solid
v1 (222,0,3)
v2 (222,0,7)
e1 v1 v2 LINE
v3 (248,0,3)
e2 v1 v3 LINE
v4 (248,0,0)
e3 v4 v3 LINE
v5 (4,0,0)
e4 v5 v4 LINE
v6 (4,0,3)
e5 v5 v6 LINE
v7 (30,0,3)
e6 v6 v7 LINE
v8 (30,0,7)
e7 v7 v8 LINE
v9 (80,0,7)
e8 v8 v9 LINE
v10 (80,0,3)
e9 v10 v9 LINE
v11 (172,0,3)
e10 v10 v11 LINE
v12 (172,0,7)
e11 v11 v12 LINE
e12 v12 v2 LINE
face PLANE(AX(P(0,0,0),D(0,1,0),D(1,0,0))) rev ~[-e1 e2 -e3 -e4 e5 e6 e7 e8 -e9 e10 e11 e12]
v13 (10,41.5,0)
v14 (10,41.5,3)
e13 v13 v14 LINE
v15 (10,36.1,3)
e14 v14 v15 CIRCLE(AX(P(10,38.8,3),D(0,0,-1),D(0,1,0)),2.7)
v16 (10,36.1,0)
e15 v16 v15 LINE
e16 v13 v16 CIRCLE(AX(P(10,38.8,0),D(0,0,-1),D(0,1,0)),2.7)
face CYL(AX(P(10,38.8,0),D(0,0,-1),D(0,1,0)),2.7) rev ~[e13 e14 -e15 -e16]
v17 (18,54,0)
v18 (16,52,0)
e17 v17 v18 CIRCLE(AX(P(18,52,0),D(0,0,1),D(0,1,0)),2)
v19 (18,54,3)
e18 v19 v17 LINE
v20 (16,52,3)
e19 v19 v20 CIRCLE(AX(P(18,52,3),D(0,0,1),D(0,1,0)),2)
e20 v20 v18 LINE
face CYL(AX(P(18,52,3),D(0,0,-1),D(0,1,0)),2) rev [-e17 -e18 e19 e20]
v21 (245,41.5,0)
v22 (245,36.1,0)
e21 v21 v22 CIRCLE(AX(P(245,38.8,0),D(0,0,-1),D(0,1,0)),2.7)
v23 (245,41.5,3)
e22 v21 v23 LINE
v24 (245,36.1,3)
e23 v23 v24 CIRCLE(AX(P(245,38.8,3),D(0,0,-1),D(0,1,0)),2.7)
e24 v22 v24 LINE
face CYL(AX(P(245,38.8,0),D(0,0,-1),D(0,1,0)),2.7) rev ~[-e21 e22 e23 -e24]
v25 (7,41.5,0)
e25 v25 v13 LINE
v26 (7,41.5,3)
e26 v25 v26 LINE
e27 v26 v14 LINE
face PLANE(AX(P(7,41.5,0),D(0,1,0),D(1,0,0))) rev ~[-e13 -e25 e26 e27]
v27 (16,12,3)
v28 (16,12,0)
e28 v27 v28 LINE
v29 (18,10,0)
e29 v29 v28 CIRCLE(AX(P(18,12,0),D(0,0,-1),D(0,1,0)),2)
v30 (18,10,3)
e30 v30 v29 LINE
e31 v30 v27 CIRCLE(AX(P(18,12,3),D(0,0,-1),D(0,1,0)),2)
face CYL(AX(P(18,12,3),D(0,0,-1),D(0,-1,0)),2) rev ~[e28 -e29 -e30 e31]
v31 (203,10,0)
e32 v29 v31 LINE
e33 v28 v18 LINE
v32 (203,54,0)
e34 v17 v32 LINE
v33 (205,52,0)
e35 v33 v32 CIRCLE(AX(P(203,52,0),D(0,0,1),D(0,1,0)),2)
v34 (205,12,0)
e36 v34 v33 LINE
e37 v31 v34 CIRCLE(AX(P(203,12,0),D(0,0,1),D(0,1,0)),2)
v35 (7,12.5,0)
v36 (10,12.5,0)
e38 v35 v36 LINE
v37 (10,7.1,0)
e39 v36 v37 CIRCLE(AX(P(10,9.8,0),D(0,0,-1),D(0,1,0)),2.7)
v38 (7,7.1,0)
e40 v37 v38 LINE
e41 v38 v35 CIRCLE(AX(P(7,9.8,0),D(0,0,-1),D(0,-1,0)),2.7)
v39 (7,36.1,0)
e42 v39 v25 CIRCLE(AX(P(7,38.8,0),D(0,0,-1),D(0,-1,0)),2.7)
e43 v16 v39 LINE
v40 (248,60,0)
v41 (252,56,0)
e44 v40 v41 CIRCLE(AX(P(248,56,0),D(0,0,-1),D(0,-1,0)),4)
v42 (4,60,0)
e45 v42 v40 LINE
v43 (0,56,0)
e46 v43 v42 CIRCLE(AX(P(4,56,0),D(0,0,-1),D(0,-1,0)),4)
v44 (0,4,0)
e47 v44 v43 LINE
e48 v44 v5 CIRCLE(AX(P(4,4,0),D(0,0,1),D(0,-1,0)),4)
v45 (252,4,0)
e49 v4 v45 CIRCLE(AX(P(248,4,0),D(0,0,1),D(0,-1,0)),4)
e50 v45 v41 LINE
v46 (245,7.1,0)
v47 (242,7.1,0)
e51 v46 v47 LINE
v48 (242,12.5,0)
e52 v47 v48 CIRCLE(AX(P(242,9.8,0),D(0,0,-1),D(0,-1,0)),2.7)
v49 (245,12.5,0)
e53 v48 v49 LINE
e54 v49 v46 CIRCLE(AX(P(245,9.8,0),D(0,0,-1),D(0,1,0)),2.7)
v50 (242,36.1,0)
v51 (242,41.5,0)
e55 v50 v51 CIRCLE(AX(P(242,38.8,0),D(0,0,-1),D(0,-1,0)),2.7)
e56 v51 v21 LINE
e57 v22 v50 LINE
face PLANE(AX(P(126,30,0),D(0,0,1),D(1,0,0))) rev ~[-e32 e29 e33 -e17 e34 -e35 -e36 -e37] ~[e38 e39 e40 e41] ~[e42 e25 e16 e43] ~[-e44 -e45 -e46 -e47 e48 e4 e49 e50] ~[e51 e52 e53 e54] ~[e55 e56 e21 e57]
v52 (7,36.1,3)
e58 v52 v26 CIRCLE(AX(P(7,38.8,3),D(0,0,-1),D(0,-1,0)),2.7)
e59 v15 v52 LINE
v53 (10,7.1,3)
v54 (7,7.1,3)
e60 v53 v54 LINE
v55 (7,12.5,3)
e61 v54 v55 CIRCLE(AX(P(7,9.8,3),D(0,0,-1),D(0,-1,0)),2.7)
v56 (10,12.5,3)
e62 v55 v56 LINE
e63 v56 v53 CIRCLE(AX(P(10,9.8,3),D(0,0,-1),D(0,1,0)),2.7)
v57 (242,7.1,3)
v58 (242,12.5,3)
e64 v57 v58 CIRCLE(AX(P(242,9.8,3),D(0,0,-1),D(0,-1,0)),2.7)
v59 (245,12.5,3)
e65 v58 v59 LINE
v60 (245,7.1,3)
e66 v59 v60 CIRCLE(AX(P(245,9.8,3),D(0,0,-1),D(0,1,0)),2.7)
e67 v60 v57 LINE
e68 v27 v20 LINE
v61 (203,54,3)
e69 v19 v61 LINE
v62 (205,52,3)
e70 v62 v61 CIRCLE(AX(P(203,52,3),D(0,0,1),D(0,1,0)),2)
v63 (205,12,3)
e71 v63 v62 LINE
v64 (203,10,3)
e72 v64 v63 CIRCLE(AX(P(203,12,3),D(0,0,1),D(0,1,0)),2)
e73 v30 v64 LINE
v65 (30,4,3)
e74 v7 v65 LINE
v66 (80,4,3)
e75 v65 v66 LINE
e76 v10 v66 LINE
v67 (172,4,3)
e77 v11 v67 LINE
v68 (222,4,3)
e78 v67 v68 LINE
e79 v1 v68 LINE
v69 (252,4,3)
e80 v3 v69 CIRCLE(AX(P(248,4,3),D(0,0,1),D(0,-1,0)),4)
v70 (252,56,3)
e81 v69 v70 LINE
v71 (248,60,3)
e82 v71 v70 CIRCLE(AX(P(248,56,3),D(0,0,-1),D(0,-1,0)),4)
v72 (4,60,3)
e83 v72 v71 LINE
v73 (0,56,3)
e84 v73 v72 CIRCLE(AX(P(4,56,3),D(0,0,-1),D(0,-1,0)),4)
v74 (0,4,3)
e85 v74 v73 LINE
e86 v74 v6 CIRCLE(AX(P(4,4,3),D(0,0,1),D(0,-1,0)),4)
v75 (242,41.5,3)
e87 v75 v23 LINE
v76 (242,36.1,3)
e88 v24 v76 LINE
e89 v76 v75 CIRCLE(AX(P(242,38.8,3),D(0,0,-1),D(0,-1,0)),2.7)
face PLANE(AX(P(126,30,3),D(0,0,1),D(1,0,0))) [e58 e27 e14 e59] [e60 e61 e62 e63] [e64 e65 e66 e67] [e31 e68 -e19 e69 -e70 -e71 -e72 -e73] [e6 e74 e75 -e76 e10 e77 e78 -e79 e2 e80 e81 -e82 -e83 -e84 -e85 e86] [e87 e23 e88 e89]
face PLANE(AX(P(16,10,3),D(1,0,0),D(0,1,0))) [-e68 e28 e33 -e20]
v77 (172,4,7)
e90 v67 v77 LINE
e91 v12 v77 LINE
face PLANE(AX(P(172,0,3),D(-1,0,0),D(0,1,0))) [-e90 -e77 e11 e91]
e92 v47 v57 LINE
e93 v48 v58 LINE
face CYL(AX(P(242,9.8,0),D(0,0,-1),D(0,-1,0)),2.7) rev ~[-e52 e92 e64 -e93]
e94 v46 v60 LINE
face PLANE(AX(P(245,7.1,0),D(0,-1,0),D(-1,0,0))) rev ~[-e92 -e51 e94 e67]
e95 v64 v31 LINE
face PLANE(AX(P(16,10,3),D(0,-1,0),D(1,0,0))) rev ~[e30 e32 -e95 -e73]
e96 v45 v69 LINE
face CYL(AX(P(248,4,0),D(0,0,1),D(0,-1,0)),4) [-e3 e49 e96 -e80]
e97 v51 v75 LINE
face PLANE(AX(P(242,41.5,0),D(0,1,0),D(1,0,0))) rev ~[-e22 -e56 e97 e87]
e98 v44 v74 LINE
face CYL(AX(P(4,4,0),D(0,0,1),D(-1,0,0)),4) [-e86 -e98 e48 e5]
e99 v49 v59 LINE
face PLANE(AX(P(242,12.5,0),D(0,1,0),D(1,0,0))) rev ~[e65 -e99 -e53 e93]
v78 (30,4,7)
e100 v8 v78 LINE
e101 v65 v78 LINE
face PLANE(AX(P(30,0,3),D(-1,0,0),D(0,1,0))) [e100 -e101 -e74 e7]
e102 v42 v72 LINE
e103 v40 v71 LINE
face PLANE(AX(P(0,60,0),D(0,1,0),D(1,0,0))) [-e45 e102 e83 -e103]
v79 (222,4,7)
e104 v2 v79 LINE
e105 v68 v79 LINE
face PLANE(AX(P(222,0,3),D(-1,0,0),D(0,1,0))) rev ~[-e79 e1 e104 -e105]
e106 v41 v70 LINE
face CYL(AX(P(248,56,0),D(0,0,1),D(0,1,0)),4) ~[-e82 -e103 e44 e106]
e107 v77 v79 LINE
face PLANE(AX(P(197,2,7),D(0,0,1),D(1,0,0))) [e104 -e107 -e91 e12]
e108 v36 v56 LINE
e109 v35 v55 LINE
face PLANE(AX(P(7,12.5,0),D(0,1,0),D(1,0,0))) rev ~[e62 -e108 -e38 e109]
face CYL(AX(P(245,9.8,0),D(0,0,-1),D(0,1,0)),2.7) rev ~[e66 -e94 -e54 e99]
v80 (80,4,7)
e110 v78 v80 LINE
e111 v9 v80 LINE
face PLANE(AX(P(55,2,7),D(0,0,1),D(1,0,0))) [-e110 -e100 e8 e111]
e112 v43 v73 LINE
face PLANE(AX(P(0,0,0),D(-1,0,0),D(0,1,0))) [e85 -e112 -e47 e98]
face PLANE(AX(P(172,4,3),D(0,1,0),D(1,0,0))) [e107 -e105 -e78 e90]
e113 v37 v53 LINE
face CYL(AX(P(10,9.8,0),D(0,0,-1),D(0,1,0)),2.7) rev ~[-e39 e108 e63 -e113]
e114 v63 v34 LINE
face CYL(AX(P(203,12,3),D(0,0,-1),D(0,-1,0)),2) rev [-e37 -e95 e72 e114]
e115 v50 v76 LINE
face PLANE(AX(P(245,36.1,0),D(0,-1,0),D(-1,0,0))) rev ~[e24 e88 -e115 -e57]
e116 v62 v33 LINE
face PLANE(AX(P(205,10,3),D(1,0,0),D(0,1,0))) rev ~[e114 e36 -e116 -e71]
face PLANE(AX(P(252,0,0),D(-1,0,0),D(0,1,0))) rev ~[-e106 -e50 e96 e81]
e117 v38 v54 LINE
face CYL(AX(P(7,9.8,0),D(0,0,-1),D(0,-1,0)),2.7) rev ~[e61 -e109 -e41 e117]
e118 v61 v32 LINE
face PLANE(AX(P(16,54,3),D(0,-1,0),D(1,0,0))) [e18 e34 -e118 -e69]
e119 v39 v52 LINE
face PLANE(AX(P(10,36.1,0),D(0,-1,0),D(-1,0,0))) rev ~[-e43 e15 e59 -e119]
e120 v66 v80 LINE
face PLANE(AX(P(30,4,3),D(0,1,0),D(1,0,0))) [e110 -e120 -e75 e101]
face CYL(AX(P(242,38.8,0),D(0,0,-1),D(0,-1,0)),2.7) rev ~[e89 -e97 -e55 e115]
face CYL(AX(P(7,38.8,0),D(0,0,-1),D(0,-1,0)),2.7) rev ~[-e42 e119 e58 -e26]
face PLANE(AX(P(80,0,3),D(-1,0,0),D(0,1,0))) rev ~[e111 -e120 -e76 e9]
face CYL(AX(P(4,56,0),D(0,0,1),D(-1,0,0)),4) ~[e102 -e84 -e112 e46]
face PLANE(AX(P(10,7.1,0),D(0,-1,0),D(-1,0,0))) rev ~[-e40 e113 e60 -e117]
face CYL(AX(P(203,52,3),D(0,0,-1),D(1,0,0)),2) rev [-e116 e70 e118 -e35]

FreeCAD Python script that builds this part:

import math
import FreeCAD as App
import Part
import Sketcher
from FreeCAD import Vector


def edges_at(feature, points):
    """Names of the edges that pass closest to the given points."""
    edges = feature.Shape.Edges
    near = lambda p: min(range(len(edges)), key=lambda i: edges[i].distToShape(Part.Vertex(*p))[0])
    return sorted({f"Edge{near(p) + 1}" for p in points})


def add_polygon(sketch, points):
    """Adds a closed chain of lines whose ends are joined by coincident constraints."""
    first, n = sketch.GeometryCount, len(points)
    for a, b in zip(points, points[1:] + points[:1]):
        sketch.addGeometry(Part.LineSegment(App.Vector(*a, 0), App.Vector(*b, 0)), False)
    for i in range(n):
        sketch.addConstraint(Sketcher.Constraint("Coincident", first + i, 2, first + (i + 1) % n, 1))

doc = App.newDocument("Part")
body = doc.addObject("PartDesign::Body", "Body")

sketch1 = doc.addObject("Sketcher::SketchObject", "Sketch")
body.addObject(sketch1)
sketch1.AttachmentSupport = (doc.XY_Plane, [""])
sketch1.MapMode = "FlatFace"
add_polygon(sketch1, [(0, 60), (0, 0), (252, 0), (252, 60)])
sketch1.addGeometry(Part.ArcOfCircle(Part.Circle(Vector(7, 9.8, 0), Vector(0, 0, 1), 2.7), math.radians(90), math.radians(270)), False)
sketch1.addGeometry(Part.LineSegment(Vector(7, 12.5, 0), Vector(10, 12.5, 0)), False)
sketch1.addGeometry(Part.ArcOfCircle(Part.Circle(Vector(10, 9.8, 0), Vector(0, 0, 1), 2.7), math.radians(-90), math.radians(90)), False)
sketch1.addGeometry(Part.LineSegment(Vector(10, 7.1, 0), Vector(7, 7.1, 0)), False)
sketch1.addGeometry(Part.ArcOfCircle(Part.Circle(Vector(242, 9.8, 0), Vector(0, 0, 1), 2.7), math.radians(90), math.radians(270)), False)
sketch1.addGeometry(Part.LineSegment(Vector(242, 12.5, 0), Vector(245, 12.5, 0)), False)
sketch1.addGeometry(Part.ArcOfCircle(Part.Circle(Vector(245, 9.8, 0), Vector(0, 0, 1), 2.7), math.radians(-90), math.radians(90)), False)
sketch1.addGeometry(Part.LineSegment(Vector(245, 7.1, 0), Vector(242, 7.1, 0)), False)
sketch1.addGeometry(Part.ArcOfCircle(Part.Circle(Vector(7, 38.8, 0), Vector(0, 0, 1), 2.7), math.radians(90), math.radians(270)), False)
sketch1.addGeometry(Part.LineSegment(Vector(7, 41.5, 0), Vector(10, 41.5, 0)), False)
sketch1.addGeometry(Part.ArcOfCircle(Part.Circle(Vector(10, 38.8, 0), Vector(0, 0, 1), 2.7), math.radians(-90), math.radians(90)), False)
sketch1.addGeometry(Part.LineSegment(Vector(10, 36.1, 0), Vector(7, 36.1, 0)), False)
sketch1.addGeometry(Part.ArcOfCircle(Part.Circle(Vector(245, 38.8, 0), Vector(0, 0, 1), 2.7), math.radians(-90), math.radians(90)), False)
sketch1.addGeometry(Part.LineSegment(Vector(245, 36.1, 0), Vector(242, 36.1, 0)), False)
sketch1.addGeometry(Part.ArcOfCircle(Part.Circle(Vector(242, 38.8, 0), Vector(0, 0, 1), 2.7), math.radians(90), math.radians(270)), False)
sketch1.addGeometry(Part.LineSegment(Vector(242, 41.5, 0), Vector(245, 41.5, 0)), False)
sketch1.addConstraint(Sketcher.Constraint("Tangent", 4, 1, 5, 1))
sketch1.addConstraint(Sketcher.Constraint("Tangent", 5, 2, 6, 2))
sketch1.addConstraint(Sketcher.Constraint("Tangent", 6, 1, 7, 1))
sketch1.addConstraint(Sketcher.Constraint("Tangent", 7, 2, 4, 2))
sketch1.addConstraint(Sketcher.Constraint("Tangent", 8, 1, 9, 1))
sketch1.addConstraint(Sketcher.Constraint("Tangent", 9, 2, 10, 2))
sketch1.addConstraint(Sketcher.Constraint("Tangent", 10, 1, 11, 1))
sketch1.addConstraint(Sketcher.Constraint("Tangent", 11, 2, 8, 2))
sketch1.addConstraint(Sketcher.Constraint("Tangent", 12, 1, 13, 1))
sketch1.addConstraint(Sketcher.Constraint("Tangent", 13, 2, 14, 2))
sketch1.addConstraint(Sketcher.Constraint("Tangent", 14, 1, 15, 1))
sketch1.addConstraint(Sketcher.Constraint("Tangent", 15, 2, 12, 2))
sketch1.addConstraint(Sketcher.Constraint("Tangent", 16, 1, 17, 1))
sketch1.addConstraint(Sketcher.Constraint("Tangent", 17, 2, 18, 2))
sketch1.addConstraint(Sketcher.Constraint("Tangent", 18, 1, 19, 1))
sketch1.addConstraint(Sketcher.Constraint("Tangent", 19, 2, 16, 2))
sketch1.addConstraint(Sketcher.Constraint("Vertical", 0))
sketch1.addConstraint(Sketcher.Constraint("Horizontal", 1))
sketch1.addConstraint(Sketcher.Constraint("Vertical", 2))
sketch1.addConstraint(Sketcher.Constraint("Horizontal", 3))
sketch1.addConstraint(Sketcher.Constraint("Horizontal", 5))
sketch1.addConstraint(Sketcher.Constraint("Horizontal", 7))
sketch1.addConstraint(Sketcher.Constraint("Horizontal", 9))
sketch1.addConstraint(Sketcher.Constraint("Horizontal", 11))
sketch1.addConstraint(Sketcher.Constraint("Horizontal", 13))
sketch1.addConstraint(Sketcher.Constraint("Horizontal", 15))
sketch1.addConstraint(Sketcher.Constraint("Horizontal", 17))
sketch1.addConstraint(Sketcher.Constraint("Horizontal", 19))
sketch1.addConstraint(Sketcher.Constraint("Coincident", 0, 2, -1, 1))
sketch1.addConstraint(Sketcher.Constraint("Equal", 6, 8))
sketch1.addConstraint(Sketcher.Constraint("Equal", 10, 12))
sketch1.addConstraint(Sketcher.Constraint("Equal", 14, 16))
sketch1.addConstraint(Sketcher.Constraint("Horizontal", 6, 3, 8, 3))
sketch1.addConstraint(Sketcher.Constraint("Horizontal", 14, 3, 16, 3))
sketch1.addConstraint(Sketcher.Constraint("Vertical", 4, 3, 12, 3))
sketch1.addConstraint(Sketcher.Constraint("Vertical", 6, 3, 14, 3))
sketch1.addConstraint(Sketcher.Constraint("Vertical", 10, 3, 16, 3))
sketch1.addConstraint(Sketcher.Constraint("Vertical", 8, 3, 18, 3))
sketch1.addConstraint(Sketcher.Constraint("Equal", 7, 9))
sketch1.addConstraint(Sketcher.Constraint("Radius", 4, 2.7))
sketch1.addConstraint(Sketcher.Constraint("DistanceX", 1, 1, 1, 2, 252.0))
sketch1.addConstraint(Sketcher.Constraint("DistanceX", 5, 1, 5, 2, 3.0))
sketch1.addConstraint(Sketcher.Constraint("DistanceY", 0, 2, 0, 1, 60.0))
sketch1.addConstraint(Sketcher.Constraint("DistanceX", -1, 1, 4, 3, 7.0))
sketch1.addConstraint(Sketcher.Constraint("DistanceX", -1, 1, 8, 3, 242.0))
sketch1.addConstraint(Sketcher.Constraint("DistanceY", 4, 3, 12, 3, 29.0))
sketch1.addConstraint(Sketcher.Constraint("DistanceY", -1, 1, 4, 3, 9.8))
pad1 = doc.addObject("PartDesign::Pad", "Pad")
body.addObject(pad1)
pad1.Profile = sketch1
pad1.Length = 3

sketch2 = doc.addObject("Sketcher::SketchObject", "Sketch001")
body.addObject(sketch2)
sketch2.AttachmentSupport = (doc.XY_Plane, [""])
sketch2.MapMode = "FlatFace"
sketch2.AttachmentOffset = App.Placement(Vector(0, 0, 3), App.Rotation())
add_polygon(sketch2, [(30, 4), (30, 0), (80, 0), (80, 4)])
add_polygon(sketch2, [(172, 4), (172, 0), (222, 0), (222, 4)])
sketch2.addConstraint(Sketcher.Constraint("Vertical", 0))
sketch2.addConstraint(Sketcher.Constraint("Horizontal", 1))
sketch2.addConstraint(Sketcher.Constraint("Vertical", 2))
sketch2.addConstraint(Sketcher.Constraint("Horizontal", 3))
sketch2.addConstraint(Sketcher.Constraint("Vertical", 4))
sketch2.addConstraint(Sketcher.Constraint("Horizontal", 5))
sketch2.addConstraint(Sketcher.Constraint("Vertical", 6))
sketch2.addConstraint(Sketcher.Constraint("Horizontal", 7))
sketch2.addConstraint(Sketcher.Constraint("PointOnObject", 0, 2, -1))
sketch2.addConstraint(Sketcher.Constraint("PointOnObject", 4, 2, -1))
sketch2.addConstraint(Sketcher.Constraint("Horizontal", 3, 2, 6, 2))
sketch2.addConstraint(Sketcher.Constraint("Equal", 3, 5))
sketch2.addConstraint(Sketcher.Constraint("DistanceX", 1, 1, 1, 2, 50.0))
sketch2.addConstraint(Sketcher.Constraint("DistanceY", 0, 2, 0, 1, 4.0))
sketch2.addConstraint(Sketcher.Constraint("DistanceX", -1, 1, 0, 2, 30.0))
sketch2.addConstraint(Sketcher.Constraint("DistanceX", -1, 1, 4, 2, 172.0))
pad2 = doc.addObject("PartDesign::Pad", "Pad001")
body.addObject(pad2)
pad2.Profile = sketch2
pad2.Length = 4

sketch3 = doc.addObject("Sketcher::SketchObject", "Sketch002")
body.addObject(sketch3)
sketch3.AttachmentSupport = (doc.XY_Plane, [""])
sketch3.MapMode = "FlatFace"
sketch3.AttachmentOffset = App.Placement(Vector(0, 0, 3), App.Rotation())
add_polygon(sketch3, [(16, 54), (16, 10), (205, 10), (205, 54)])
sketch3.addConstraint(Sketcher.Constraint("Vertical", 0))
sketch3.addConstraint(Sketcher.Constraint("Horizontal", 1))
sketch3.addConstraint(Sketcher.Constraint("Vertical", 2))
sketch3.addConstraint(Sketcher.Constraint("Horizontal", 3))
sketch3.addConstraint(Sketcher.Constraint("DistanceX", 1, 1, 1, 2, 189.0))
sketch3.addConstraint(Sketcher.Constraint("DistanceY", 0, 2, 0, 1, 44.0))
sketch3.addConstraint(Sketcher.Constraint("DistanceX", -1, 1, 0, 2, 16.0))
sketch3.addConstraint(Sketcher.Constraint("DistanceY", -1, 1, 0, 2, 10.0))
pocket1 = doc.addObject("PartDesign::Pocket", "Pocket")
body.addObject(pocket1)
pocket1.Profile = sketch3
pocket1.Length = 4
doc.recompute()

fillet = doc.addObject("PartDesign::Fillet", "Fillet")
body.addObject(fillet)
fillet.Base = (pocket1, edges_at(pocket1, [
    (0, 60, 1.5),
    (252, 60, 1.5),
    (252, 0, 1.5),
    (0, 0, 1.5),
]))
fillet.Radius = 4
doc.recompute()

fillet2 = doc.addObject("PartDesign::Fillet", "Fillet001")
body.addObject(fillet2)
fillet2.Base = (fillet, edges_at(fillet, [
    (205, 54, 1.5),
    (205, 10, 1.5),
    (16, 10, 1.5),
    (16, 54, 1.5),
]))
fillet2.Radius = 2

doc.recompute()
